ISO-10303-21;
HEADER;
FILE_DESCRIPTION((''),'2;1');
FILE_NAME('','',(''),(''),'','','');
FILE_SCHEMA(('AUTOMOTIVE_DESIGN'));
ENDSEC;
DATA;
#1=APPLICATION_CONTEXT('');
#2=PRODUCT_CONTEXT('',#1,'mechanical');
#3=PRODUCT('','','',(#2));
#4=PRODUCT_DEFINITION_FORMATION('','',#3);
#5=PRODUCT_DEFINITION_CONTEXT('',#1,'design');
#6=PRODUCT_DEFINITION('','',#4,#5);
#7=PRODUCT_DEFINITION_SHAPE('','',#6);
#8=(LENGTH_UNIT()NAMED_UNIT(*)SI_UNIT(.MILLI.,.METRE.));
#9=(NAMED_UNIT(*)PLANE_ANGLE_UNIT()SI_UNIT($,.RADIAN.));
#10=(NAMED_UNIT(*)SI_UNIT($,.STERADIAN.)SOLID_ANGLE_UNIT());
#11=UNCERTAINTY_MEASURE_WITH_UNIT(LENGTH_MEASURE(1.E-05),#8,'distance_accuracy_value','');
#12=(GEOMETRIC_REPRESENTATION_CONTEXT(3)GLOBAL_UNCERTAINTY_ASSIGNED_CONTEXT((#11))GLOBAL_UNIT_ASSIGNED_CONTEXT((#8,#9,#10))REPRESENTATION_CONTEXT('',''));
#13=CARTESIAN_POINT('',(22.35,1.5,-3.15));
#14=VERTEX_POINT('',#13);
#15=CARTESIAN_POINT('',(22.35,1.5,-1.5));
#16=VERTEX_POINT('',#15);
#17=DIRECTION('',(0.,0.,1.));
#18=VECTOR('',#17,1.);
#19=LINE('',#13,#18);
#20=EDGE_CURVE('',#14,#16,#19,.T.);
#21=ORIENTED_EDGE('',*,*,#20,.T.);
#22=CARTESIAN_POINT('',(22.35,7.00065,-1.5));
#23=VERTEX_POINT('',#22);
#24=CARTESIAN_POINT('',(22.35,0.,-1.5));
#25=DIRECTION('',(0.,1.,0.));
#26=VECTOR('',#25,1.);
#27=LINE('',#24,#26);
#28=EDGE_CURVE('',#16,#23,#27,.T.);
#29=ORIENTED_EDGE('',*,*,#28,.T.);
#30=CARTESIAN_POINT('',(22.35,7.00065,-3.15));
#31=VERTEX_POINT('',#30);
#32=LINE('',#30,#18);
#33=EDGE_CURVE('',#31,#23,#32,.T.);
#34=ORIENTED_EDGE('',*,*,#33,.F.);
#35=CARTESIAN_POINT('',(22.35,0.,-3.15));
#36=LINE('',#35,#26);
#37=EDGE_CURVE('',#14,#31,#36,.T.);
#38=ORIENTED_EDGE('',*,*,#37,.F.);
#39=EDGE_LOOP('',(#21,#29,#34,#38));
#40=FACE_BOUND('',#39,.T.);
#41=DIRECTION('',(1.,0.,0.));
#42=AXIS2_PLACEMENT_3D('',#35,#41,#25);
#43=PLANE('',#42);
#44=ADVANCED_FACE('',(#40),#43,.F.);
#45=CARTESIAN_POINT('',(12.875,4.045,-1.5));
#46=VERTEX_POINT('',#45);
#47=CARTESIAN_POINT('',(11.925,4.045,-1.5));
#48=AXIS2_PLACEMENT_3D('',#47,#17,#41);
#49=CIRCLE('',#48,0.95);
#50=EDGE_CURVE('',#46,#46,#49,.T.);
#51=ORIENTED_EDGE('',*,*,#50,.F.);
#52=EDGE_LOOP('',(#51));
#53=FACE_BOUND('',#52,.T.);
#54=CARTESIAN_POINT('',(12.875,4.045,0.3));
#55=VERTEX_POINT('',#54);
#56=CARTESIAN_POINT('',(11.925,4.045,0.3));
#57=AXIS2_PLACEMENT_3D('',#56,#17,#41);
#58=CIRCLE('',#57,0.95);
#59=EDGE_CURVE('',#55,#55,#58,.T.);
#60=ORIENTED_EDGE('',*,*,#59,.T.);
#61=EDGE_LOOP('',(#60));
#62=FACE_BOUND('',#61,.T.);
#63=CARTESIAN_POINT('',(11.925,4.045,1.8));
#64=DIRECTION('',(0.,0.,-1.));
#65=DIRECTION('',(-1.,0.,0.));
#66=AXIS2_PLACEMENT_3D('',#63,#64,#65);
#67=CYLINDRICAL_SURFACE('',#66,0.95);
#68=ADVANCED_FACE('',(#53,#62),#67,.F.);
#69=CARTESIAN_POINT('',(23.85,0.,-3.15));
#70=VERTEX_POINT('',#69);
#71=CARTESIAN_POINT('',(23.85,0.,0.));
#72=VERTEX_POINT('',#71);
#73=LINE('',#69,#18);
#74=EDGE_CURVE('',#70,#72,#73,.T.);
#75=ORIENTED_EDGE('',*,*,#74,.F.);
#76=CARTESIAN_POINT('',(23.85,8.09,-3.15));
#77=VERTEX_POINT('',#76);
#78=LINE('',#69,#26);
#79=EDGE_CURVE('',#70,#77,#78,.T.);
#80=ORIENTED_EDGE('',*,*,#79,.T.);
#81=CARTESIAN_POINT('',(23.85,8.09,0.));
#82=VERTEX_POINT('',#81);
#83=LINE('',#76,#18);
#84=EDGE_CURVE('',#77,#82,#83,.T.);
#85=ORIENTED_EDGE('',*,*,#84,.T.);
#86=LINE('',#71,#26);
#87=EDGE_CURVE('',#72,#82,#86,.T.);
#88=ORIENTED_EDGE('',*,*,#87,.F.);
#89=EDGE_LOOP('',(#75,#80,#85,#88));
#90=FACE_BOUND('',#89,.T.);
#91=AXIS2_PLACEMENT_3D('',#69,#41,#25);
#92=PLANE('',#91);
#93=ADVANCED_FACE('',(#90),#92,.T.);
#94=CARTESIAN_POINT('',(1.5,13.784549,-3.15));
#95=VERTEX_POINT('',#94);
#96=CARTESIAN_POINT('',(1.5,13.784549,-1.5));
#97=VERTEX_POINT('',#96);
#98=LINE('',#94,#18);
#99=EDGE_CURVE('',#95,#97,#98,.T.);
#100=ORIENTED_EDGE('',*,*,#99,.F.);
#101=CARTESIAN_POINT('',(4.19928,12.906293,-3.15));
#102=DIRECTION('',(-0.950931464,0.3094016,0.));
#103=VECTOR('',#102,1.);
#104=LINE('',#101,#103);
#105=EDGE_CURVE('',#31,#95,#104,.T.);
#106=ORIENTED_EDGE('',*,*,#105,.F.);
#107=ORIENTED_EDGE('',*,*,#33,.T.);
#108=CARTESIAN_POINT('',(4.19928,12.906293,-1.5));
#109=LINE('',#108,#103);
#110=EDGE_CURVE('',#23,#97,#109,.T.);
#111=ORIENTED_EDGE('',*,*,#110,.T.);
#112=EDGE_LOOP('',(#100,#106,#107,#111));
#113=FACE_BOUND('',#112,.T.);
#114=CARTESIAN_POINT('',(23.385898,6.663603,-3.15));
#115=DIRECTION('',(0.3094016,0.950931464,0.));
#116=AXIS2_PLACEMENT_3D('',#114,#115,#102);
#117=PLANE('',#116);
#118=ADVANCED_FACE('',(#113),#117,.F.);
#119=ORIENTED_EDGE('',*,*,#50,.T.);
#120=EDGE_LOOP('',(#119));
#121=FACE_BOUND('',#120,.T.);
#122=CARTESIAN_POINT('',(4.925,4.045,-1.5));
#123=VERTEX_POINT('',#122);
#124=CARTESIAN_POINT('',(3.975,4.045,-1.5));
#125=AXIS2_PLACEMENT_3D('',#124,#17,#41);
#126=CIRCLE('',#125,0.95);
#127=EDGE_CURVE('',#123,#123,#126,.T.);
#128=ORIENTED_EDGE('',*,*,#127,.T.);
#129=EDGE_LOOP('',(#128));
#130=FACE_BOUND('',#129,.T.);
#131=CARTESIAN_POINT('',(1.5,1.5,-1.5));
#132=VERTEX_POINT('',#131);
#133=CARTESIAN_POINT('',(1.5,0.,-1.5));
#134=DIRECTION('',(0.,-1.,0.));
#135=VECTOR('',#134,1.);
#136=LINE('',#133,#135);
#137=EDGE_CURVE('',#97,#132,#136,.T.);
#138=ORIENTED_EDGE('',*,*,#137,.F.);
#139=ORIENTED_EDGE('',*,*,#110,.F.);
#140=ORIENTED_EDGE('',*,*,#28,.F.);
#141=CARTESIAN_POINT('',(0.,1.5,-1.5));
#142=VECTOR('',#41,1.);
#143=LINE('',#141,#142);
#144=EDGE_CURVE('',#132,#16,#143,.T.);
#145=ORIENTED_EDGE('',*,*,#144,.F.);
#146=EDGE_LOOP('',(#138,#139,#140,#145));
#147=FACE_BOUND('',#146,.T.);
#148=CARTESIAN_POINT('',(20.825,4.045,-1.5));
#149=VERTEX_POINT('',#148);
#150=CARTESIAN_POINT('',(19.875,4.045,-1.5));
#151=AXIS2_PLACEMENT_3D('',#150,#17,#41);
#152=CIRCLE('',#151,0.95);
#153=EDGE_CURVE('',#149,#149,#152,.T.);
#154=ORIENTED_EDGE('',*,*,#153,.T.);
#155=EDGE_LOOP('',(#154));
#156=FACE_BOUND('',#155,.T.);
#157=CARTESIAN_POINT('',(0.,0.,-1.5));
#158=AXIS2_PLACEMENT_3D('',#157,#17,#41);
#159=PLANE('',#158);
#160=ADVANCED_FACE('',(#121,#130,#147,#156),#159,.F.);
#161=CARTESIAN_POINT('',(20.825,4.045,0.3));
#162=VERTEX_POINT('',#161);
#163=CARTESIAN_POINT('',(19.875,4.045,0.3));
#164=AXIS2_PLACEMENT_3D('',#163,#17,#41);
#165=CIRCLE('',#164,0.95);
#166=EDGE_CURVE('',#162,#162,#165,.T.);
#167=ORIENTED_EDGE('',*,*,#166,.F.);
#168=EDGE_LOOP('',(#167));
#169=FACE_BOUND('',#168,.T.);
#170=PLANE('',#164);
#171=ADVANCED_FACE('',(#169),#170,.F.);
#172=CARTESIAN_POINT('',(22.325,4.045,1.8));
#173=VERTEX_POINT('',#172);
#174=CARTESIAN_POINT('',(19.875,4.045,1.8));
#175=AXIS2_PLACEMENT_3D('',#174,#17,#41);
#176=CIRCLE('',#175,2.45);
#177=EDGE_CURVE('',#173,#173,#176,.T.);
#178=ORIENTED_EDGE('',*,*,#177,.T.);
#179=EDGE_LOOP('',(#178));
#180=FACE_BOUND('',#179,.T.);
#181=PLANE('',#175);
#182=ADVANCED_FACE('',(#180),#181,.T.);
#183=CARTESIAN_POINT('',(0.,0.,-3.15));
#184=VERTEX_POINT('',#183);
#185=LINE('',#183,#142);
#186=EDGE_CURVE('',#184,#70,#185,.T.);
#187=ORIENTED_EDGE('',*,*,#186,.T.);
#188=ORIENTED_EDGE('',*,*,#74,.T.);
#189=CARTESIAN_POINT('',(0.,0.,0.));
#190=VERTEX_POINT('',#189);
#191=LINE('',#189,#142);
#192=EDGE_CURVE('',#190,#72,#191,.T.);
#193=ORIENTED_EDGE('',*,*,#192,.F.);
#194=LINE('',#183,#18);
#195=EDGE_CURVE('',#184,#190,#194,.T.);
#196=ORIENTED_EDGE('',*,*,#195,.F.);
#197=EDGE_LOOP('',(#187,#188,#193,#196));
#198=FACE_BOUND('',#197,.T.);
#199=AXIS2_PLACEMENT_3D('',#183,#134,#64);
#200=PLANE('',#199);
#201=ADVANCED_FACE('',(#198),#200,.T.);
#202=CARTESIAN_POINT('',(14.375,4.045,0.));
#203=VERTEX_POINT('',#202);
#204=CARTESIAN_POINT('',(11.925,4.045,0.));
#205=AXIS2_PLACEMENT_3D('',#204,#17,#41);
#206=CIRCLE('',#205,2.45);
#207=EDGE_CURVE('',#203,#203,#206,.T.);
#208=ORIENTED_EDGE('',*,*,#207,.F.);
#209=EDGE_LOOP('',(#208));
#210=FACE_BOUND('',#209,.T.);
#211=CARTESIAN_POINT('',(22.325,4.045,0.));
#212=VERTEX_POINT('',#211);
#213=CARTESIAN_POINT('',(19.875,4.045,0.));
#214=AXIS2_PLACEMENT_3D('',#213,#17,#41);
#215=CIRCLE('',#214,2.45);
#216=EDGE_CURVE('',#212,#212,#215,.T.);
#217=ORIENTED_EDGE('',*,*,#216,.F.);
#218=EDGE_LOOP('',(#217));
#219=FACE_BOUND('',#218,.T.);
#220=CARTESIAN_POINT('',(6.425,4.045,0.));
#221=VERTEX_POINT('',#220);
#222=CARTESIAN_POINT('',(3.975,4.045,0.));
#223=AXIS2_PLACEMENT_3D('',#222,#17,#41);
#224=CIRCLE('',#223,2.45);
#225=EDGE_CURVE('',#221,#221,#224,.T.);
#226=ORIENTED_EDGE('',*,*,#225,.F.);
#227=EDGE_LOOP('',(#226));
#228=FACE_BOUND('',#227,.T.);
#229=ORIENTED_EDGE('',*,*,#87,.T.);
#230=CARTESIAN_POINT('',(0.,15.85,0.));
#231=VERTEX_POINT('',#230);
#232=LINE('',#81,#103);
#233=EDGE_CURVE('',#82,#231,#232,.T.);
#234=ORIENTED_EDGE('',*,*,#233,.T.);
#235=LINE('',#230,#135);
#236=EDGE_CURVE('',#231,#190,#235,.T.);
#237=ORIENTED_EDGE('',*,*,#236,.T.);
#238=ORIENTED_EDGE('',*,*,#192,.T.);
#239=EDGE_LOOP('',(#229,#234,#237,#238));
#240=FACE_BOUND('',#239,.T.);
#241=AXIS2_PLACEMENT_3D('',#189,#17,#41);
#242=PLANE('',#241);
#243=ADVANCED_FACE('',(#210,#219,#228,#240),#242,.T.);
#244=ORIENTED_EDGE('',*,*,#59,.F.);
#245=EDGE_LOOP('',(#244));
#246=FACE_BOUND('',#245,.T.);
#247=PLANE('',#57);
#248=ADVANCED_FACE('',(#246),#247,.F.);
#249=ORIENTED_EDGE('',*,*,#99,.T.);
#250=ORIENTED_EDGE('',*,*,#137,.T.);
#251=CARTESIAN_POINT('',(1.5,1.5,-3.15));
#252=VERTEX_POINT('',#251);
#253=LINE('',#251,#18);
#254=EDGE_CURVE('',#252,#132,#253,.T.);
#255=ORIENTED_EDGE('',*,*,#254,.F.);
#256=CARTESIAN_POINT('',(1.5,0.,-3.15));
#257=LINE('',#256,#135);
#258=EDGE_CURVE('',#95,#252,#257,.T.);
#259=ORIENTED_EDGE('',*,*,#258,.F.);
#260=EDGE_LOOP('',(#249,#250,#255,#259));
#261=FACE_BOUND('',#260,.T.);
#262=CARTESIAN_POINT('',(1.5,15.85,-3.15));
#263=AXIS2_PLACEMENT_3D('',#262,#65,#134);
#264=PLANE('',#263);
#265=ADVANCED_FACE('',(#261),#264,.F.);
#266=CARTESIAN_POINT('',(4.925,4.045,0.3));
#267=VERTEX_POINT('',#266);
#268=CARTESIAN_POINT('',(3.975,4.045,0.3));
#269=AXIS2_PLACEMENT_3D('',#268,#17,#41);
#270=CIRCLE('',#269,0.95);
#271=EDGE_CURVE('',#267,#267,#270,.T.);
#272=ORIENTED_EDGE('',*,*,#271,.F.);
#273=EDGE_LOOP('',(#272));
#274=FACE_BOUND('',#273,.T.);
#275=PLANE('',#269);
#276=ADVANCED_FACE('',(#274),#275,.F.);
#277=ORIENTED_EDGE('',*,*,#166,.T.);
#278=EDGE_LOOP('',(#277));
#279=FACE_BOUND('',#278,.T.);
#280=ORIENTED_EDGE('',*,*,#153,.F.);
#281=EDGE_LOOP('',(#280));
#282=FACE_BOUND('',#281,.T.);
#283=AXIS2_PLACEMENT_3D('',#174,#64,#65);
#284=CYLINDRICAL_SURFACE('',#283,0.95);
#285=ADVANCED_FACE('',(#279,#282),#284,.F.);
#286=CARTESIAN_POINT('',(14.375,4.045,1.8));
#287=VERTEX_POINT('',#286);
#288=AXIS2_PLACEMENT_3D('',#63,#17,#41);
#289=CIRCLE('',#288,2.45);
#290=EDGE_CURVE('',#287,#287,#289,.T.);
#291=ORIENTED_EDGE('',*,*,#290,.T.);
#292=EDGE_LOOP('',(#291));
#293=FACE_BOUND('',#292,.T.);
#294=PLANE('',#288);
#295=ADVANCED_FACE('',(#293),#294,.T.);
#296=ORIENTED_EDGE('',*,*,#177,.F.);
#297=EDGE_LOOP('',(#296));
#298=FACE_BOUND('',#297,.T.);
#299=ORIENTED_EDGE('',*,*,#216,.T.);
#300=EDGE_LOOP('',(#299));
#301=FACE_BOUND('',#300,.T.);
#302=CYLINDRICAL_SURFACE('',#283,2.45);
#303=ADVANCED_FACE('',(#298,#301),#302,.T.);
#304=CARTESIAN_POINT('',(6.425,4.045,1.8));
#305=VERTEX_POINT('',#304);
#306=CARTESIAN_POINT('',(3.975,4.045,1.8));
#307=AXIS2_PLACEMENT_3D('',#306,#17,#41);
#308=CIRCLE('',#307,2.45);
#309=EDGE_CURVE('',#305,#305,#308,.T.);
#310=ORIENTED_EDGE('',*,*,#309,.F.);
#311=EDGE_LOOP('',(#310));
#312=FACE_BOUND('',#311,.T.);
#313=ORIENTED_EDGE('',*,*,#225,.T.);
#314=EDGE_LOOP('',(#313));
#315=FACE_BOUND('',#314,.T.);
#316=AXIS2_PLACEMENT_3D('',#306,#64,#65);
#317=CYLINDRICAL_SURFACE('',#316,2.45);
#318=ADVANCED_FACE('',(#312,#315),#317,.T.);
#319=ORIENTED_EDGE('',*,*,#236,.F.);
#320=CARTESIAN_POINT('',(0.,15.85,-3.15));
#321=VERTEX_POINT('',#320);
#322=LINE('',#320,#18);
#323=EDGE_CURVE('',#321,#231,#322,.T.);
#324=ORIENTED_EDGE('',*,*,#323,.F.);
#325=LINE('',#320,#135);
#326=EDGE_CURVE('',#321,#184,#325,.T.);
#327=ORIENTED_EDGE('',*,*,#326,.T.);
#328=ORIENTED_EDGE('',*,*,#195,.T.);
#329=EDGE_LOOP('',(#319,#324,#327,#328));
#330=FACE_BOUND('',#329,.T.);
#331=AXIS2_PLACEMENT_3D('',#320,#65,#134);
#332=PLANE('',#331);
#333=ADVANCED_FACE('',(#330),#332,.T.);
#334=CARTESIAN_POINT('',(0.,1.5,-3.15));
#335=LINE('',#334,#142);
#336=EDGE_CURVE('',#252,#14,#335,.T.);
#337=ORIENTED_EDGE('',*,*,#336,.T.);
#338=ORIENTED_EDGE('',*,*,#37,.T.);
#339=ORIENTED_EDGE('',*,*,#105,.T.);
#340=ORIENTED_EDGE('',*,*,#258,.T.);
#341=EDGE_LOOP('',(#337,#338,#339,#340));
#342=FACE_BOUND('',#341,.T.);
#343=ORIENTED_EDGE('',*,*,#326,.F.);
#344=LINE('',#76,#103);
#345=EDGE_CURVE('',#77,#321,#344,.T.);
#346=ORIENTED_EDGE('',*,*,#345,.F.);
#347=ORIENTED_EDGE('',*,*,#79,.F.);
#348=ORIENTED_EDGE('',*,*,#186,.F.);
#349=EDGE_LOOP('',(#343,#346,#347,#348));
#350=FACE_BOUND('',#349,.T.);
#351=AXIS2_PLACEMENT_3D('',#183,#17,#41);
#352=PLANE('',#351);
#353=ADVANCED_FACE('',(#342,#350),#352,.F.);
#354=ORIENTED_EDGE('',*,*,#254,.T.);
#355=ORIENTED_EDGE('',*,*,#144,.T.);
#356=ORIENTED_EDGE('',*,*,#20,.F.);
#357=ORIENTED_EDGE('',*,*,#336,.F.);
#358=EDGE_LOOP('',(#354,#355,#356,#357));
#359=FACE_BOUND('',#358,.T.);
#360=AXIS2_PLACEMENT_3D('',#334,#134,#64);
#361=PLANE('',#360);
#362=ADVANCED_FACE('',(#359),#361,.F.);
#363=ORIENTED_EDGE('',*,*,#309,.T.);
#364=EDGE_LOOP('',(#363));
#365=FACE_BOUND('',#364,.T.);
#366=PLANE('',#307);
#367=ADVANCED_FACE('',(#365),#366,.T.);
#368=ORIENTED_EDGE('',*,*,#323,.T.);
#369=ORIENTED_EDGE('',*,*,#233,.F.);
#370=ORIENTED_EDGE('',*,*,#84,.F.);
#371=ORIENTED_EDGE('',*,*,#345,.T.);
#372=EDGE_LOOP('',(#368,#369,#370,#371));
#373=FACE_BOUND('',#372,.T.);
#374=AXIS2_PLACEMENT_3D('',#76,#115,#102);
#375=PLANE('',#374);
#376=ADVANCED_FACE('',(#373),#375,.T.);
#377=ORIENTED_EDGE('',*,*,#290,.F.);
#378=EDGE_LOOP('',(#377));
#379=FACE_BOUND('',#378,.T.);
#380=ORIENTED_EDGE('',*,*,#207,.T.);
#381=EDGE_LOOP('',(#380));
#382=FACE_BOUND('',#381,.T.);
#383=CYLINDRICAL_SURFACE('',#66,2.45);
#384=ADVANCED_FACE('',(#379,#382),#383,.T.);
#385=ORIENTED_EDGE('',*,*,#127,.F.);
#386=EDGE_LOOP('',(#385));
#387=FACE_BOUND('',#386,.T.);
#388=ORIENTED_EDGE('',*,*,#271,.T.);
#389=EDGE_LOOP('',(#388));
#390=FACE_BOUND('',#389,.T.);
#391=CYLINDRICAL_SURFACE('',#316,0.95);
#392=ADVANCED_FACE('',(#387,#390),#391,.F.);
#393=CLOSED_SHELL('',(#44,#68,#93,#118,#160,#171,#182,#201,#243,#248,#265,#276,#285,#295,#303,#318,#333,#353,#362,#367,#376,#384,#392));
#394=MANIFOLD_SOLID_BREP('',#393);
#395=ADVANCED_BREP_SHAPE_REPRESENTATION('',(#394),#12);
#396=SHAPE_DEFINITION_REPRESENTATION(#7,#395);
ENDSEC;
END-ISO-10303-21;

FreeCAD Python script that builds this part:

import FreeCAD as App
import Part
import Sketcher


def faces_at(feature, points):
    """Names of the faces that lie closest to the given points."""
    faces = feature.Shape.Faces
    near = lambda p: min(range(len(faces)), key=lambda i: faces[i].distToShape(Part.Vertex(*p))[0])
    return sorted({f"Face{near(p) + 1}" for p in points})


def add_polygon(sketch, points):
    """Adds a closed chain of lines whose ends are joined by coincident constraints."""
    first, n = sketch.GeometryCount, len(points)
    for a, b in zip(points, points[1:] + points[:1]):
        sketch.addGeometry(Part.LineSegment(App.Vector(*a, 0), App.Vector(*b, 0)), False)
    for i in range(n):
        sketch.addConstraint(Sketcher.Constraint("Coincident", first + i, 2, first + (i + 1) % n, 1))

doc = App.newDocument("Part")
body = doc.addObject("PartDesign::Body", "Body")

sketch1 = doc.addObject("Sketcher::SketchObject", "Sketch")
body.addObject(sketch1)
sketch1.AttachmentSupport = (doc.XY_Plane, [""])
sketch1.MapMode = "FlatFace"
add_polygon(sketch1, [(0, 0), (24, 0), (24, 8), (0, 16)])
sketch1.addConstraint([
    Sketcher.Constraint("Horizontal", 0),
    Sketcher.Constraint("Vertical", 1),
    Sketcher.Constraint("Vertical", 3),
    Sketcher.Constraint("Coincident", 3, 2, -1, 1),
    Sketcher.Constraint("DistanceX", 0, 1, 0, 2, 23.85),
    Sketcher.Constraint("DistanceY", 1, 1, 1, 2, 8.09),
    Sketcher.Constraint("DistanceY", 3, 2, 3, 1, 15.85),
])
pad1 = doc.addObject("PartDesign::Pad", "Pad")
body.addObject(pad1)
pad1.Profile = sketch1
pad1.Length = 3.15
pad1.Reversed = True

sketch2 = doc.addObject("Sketcher::SketchObject", "Sketch001")
body.addObject(sketch2)
sketch2.AttachmentSupport = (doc.XY_Plane, [""])
sketch2.MapMode = "FlatFace"
sketch2.addGeometry([
    Part.Circle(App.Vector(4, 4, 0), App.Vector(0, 0, 1), 2.5),
    Part.Circle(App.Vector(11.9, 4, 0), App.Vector(0, 0, 1), 2.5),
    Part.Circle(App.Vector(19.9, 4, 0), App.Vector(0, 0, 1), 2.5),
], False)
sketch2.addConstraint([
    Sketcher.Constraint("Equal", 0, 1),
    Sketcher.Constraint("Equal", 1, 2),
    Sketcher.Constraint("Horizontal", 0, 3, 1, 3),
    Sketcher.Constraint("Horizontal", 1, 3, 2, 3),
    Sketcher.Constraint("Diameter", 0, 4.9),
    Sketcher.Constraint("DistanceX", 0, 3, 2, 3, 15.9),
    Sketcher.Constraint("DistanceX", 0, 3, 1, 3, 7.95),
    Sketcher.Constraint("DistanceX", -1, 1, 0, 3, 3.975),
    Sketcher.Constraint("DistanceY", -1, 1, 0, 3, 4.045),
])
pad2 = doc.addObject("PartDesign::Pad", "Pad001")
body.addObject(pad2)
pad2.Profile = sketch2
pad2.Length = 1.8
doc.recompute()

thickness = doc.addObject("PartDesign::Thickness", "Thickness")
body.addObject(thickness)
thickness.Base = (pad2, faces_at(pad2, [(11.925, 7.925, -3.15)]))
thickness.Value = 1.5
thickness.Reversed = True
thickness.Join = "Intersection"

doc.recompute()
